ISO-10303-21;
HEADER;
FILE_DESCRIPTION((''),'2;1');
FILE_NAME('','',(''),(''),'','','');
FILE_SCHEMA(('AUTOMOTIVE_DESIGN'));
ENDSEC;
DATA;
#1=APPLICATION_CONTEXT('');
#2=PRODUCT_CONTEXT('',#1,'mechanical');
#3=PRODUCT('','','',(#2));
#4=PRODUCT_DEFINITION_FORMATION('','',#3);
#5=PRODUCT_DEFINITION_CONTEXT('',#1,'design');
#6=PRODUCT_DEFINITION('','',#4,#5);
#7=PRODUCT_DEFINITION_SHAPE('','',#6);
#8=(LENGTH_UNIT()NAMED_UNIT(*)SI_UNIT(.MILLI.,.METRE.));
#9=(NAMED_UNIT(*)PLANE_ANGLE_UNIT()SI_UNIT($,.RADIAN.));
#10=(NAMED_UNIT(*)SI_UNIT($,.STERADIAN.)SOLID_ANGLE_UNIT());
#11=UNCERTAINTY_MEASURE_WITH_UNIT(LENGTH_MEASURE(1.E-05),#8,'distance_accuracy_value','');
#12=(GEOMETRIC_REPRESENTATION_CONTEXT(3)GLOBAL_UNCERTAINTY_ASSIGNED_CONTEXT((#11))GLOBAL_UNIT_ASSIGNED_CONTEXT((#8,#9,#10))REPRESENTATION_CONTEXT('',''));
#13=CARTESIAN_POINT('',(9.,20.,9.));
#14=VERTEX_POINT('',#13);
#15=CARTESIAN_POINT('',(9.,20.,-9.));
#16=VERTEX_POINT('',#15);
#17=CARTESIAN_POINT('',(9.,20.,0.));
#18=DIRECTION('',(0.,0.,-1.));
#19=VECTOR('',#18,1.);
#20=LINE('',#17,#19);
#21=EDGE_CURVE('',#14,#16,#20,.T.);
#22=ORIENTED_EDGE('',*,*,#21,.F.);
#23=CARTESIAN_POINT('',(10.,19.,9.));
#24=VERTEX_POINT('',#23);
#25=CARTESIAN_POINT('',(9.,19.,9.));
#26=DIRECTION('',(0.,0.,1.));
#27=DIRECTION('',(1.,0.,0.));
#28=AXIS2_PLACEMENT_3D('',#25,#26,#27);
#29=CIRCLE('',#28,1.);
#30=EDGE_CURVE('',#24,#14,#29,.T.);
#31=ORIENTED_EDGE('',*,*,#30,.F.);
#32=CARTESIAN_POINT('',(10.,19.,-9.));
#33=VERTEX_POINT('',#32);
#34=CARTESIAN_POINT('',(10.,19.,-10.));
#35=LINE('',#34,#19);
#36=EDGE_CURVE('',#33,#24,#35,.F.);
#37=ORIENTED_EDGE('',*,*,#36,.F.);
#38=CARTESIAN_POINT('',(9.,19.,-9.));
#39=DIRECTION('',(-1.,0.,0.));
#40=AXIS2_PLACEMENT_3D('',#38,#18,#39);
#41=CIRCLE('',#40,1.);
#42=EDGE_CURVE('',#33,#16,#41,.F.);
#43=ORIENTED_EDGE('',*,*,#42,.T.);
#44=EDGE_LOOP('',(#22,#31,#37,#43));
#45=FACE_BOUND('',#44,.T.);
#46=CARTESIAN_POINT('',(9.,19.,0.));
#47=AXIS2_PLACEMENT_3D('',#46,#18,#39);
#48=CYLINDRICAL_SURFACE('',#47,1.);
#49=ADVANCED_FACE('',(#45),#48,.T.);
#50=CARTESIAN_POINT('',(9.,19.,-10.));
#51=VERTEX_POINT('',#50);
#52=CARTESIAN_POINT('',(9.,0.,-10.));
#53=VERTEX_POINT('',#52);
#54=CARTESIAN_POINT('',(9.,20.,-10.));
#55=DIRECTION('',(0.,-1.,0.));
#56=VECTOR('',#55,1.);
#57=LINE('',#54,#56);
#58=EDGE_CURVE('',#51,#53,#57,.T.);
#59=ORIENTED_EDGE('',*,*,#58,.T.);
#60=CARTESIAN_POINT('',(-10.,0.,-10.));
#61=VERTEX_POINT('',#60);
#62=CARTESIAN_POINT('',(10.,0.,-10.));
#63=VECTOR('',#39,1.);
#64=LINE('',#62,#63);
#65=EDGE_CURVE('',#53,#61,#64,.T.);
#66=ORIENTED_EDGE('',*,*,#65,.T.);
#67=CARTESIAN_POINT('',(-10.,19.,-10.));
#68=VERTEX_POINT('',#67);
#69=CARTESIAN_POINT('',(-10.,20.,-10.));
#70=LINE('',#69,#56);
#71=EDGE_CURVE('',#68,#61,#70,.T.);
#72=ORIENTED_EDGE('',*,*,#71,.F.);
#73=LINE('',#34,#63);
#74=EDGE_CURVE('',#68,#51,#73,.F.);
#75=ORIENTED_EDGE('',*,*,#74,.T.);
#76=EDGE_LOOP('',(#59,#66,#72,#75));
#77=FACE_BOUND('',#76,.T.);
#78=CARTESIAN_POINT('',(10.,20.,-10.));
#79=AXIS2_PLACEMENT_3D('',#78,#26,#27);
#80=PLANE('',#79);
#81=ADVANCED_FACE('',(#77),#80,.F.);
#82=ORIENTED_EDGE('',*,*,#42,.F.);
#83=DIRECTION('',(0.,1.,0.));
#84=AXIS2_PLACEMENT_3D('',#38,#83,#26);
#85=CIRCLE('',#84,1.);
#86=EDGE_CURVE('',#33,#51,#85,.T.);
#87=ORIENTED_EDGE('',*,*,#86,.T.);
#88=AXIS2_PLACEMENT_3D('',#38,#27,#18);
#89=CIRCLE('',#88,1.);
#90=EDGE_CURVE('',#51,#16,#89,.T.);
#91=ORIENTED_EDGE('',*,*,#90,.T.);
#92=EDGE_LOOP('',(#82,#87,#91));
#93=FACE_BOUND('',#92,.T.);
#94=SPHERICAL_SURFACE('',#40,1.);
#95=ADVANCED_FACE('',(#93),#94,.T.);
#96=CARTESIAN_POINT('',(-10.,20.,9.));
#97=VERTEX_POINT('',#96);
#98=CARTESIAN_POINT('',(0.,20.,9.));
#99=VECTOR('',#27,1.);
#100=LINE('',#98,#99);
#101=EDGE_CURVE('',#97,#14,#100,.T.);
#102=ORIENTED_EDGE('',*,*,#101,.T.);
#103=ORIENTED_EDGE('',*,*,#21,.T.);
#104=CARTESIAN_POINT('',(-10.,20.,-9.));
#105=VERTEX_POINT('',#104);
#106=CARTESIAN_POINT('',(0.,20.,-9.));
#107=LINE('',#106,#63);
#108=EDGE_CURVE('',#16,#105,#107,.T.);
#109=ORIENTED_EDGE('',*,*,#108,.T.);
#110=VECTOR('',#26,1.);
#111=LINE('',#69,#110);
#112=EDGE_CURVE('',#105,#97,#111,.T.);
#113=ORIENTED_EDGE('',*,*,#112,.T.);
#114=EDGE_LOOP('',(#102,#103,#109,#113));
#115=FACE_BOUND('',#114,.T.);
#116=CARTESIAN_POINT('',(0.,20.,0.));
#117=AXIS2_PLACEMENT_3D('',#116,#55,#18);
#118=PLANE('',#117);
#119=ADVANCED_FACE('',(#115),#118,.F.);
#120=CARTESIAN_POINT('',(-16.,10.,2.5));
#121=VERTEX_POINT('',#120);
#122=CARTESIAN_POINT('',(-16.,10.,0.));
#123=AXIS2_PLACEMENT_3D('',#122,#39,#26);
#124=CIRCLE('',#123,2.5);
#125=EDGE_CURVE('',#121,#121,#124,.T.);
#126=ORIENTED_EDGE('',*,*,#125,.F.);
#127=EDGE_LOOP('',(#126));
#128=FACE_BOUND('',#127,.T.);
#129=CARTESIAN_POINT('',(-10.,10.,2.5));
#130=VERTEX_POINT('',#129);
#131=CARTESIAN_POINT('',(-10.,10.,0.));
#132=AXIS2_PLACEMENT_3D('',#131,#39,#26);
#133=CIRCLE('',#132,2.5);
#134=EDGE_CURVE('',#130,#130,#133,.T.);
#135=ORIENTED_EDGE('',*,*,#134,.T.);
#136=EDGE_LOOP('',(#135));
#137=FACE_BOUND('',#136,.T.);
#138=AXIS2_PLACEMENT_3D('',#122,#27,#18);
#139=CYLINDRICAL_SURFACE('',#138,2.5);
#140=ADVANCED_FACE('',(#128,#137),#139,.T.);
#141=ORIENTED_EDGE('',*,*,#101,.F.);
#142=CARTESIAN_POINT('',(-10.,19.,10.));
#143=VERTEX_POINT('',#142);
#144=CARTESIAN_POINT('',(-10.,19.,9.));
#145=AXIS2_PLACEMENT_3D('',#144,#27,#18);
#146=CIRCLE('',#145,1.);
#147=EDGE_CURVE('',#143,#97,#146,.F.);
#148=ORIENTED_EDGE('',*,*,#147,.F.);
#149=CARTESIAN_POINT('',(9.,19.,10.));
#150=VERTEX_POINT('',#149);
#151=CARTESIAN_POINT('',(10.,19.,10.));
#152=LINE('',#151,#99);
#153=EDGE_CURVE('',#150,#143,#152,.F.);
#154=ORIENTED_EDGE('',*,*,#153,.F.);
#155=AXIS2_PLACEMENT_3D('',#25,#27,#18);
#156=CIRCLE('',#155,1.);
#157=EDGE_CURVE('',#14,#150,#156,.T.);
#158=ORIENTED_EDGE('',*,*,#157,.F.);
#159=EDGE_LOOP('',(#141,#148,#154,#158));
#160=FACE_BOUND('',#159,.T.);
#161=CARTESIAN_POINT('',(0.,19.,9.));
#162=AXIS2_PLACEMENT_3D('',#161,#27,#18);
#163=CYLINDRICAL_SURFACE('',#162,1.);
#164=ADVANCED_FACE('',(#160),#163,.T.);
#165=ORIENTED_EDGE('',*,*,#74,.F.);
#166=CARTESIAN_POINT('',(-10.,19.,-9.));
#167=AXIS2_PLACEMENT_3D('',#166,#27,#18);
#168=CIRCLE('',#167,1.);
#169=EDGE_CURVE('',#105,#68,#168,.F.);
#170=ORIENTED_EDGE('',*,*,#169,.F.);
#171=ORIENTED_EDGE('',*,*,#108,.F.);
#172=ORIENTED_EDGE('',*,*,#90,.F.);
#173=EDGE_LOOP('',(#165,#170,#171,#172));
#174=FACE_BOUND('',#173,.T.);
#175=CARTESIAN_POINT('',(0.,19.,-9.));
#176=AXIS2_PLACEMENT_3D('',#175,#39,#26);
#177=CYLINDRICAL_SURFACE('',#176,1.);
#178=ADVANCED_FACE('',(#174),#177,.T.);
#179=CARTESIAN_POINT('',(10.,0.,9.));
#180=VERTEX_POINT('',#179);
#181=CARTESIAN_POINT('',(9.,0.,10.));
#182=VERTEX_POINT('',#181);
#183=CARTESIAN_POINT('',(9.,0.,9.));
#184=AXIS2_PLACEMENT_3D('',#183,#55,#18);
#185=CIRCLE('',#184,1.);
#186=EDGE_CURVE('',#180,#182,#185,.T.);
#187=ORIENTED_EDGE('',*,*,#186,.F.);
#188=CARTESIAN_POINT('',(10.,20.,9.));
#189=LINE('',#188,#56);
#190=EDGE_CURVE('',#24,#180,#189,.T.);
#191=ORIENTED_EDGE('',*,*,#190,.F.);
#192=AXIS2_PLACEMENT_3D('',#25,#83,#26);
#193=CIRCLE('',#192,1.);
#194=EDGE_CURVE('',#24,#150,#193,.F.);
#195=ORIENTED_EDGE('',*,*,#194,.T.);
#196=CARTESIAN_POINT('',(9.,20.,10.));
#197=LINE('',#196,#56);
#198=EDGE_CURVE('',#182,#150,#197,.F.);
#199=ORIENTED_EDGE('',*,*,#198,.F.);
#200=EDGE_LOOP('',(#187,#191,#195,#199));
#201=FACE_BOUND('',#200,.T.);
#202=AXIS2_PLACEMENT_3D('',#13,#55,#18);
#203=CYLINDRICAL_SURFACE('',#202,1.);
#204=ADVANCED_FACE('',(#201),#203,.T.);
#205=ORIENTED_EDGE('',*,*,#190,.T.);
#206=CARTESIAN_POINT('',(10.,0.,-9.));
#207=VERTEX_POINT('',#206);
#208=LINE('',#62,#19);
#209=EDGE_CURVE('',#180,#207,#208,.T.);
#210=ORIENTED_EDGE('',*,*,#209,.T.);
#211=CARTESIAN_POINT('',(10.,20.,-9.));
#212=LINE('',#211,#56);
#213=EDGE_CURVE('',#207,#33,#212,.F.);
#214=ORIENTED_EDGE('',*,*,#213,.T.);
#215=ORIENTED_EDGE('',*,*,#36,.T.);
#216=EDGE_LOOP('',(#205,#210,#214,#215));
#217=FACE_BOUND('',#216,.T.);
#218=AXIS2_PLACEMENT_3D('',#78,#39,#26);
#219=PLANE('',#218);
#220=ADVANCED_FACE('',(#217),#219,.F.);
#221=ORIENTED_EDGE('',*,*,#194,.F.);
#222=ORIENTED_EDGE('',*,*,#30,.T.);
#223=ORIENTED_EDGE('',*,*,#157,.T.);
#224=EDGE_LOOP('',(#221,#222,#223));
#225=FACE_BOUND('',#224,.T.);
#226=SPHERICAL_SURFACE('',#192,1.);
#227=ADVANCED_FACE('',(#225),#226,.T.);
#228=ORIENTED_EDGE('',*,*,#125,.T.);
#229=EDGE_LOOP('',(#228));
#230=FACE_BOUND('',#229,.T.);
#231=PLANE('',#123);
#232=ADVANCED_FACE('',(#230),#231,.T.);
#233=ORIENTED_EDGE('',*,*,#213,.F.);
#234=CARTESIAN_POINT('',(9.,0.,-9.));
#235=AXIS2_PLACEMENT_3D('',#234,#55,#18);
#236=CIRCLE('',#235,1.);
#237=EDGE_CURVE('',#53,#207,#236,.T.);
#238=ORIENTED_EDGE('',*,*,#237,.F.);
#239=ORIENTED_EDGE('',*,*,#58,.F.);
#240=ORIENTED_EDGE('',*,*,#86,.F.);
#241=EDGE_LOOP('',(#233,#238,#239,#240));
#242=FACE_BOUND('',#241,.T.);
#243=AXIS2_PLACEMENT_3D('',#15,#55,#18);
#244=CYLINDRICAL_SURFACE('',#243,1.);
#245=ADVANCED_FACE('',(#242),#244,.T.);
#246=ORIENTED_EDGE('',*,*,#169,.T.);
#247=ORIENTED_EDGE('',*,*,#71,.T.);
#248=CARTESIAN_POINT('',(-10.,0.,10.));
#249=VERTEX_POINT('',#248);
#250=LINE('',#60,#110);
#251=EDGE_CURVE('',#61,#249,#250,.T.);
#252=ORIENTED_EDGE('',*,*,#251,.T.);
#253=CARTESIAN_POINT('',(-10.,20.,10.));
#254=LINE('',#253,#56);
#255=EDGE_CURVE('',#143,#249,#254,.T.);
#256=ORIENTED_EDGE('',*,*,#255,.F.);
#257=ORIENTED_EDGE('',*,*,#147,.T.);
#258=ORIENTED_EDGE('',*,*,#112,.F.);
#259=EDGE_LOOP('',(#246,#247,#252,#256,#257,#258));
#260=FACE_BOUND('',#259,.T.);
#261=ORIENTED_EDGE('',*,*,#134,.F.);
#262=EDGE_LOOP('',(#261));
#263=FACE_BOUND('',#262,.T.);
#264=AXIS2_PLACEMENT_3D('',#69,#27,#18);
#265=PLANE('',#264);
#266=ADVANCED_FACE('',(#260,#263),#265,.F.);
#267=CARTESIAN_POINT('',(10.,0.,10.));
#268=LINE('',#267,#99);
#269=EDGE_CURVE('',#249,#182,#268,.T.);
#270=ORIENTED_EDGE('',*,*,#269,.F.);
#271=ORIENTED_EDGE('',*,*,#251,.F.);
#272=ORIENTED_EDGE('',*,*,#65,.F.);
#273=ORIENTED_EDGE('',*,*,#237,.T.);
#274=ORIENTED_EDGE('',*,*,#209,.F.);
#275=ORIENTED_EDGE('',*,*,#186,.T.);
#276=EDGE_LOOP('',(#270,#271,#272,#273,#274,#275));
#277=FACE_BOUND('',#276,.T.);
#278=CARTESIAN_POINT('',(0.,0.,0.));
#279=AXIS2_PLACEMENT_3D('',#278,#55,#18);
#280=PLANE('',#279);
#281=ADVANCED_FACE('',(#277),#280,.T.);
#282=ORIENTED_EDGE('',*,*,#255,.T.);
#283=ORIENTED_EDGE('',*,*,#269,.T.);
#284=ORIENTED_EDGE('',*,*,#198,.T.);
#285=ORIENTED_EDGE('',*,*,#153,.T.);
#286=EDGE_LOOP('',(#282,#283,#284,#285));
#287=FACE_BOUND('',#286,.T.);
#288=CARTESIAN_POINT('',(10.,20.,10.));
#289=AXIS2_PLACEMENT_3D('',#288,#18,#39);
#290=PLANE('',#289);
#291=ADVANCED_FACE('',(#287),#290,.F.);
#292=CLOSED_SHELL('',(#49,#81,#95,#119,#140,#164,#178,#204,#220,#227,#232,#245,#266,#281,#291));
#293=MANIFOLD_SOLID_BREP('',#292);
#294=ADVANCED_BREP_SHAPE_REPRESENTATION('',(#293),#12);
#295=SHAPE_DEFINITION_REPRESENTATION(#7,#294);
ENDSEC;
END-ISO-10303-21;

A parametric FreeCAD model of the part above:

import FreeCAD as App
import Part
import Sketcher

V = App.Vector
Q = App.Units.Quantity


def edges_at(feature, points):
    """Names of the edges that pass closest to the given points."""
    edges = feature.Shape.Edges
    near = lambda p: min(range(len(edges)), key=lambda i: edges[i].distToShape(Part.Vertex(*p))[0])
    return sorted({f"Edge{near(p) + 1}" for p in points})

doc = App.newDocument("Part")
body = doc.addObject("PartDesign::Body", "Body")

# Sketch on XZ plane
sketch1 = body.newObject("Sketcher::SketchObject", "Sketch")
sketch1.AttachmentSupport = (doc.getObject("XZ_Plane"), [""])
sketch1.MapMode = "FlatFace"
sketch1.addGeometry(Part.LineSegment(V(-10, -10, 0), V(-10, 10, 0)), False)
sketch1.addGeometry(Part.LineSegment(V(-10, 10, 0), V(10, 10, 0)), False)
sketch1.addGeometry(Part.LineSegment(V(10, 10, 0), V(10, -10, 0)), False)
sketch1.addGeometry(Part.LineSegment(V(10, -10, 0), V(-10, -10, 0)), False)
sketch1.addConstraint(Sketcher.Constraint("Coincident", 0, 2, 1, 1))
sketch1.addConstraint(Sketcher.Constraint("Coincident", 1, 2, 2, 1))
sketch1.addConstraint(Sketcher.Constraint("Coincident", 2, 2, 3, 1))
sketch1.addConstraint(Sketcher.Constraint("Coincident", 3, 2, 0, 1))
sketch1.addConstraint(Sketcher.Constraint("Vertical", 0))
sketch1.addConstraint(Sketcher.Constraint("Horizontal", 1))
sketch1.addConstraint(Sketcher.Constraint("Vertical", 2))
sketch1.addConstraint(Sketcher.Constraint("Horizontal", 3))
sketch1.addConstraint(Sketcher.Constraint("Symmetric", 0, 2, 2, 2, -1, 1))
sketch1.addConstraint(Sketcher.Constraint("Equal", 3, 0))
sketch1.addConstraint(Sketcher.Constraint("DistanceX", 1, 1, 1, 2, Q("20 mm")))
pad1 = body.newObject("PartDesign::Pad", "Pad")
pad1.Profile = sketch1
pad1.Length = 20
pad1.Reversed = True

# Sketch on YZ plane
sketch2 = body.newObject("Sketcher::SketchObject", "Sketch001")
sketch2.AttachmentSupport = (doc.getObject("YZ_Plane"), [""])
sketch2.MapMode = "FlatFace"
sketch2.AttachmentOffset = App.Placement(V(0, 0, -10), App.Rotation())
sketch2.addGeometry(Part.Circle(V(10, 0, 0), V(0, 0, 1), 2.5), False)
sketch2.addConstraint(Sketcher.Constraint("PointOnObject", 0, 3, -1))
sketch2.addConstraint(Sketcher.Constraint("Diameter", 0, Q("5 mm")))
sketch2.addConstraint(Sketcher.Constraint("DistanceX", -1, 1, 0, 3, Q("10 mm")))
pad2 = body.newObject("PartDesign::Pad", "Pad001")
pad2.Profile = sketch2
pad2.Length = 6
pad2.Reversed = True
doc.recompute()

fillet = body.newObject("PartDesign::Fillet", "Fillet")
fillet.Base = (pad2, edges_at(pad2, [
    (10, 20, 0),
    (0, 20, -10),
    (10, 10, -10),
    (10, 10, 10),
    (0, 20, 10),
]))
fillet.Radius = 1

doc.recompute()
